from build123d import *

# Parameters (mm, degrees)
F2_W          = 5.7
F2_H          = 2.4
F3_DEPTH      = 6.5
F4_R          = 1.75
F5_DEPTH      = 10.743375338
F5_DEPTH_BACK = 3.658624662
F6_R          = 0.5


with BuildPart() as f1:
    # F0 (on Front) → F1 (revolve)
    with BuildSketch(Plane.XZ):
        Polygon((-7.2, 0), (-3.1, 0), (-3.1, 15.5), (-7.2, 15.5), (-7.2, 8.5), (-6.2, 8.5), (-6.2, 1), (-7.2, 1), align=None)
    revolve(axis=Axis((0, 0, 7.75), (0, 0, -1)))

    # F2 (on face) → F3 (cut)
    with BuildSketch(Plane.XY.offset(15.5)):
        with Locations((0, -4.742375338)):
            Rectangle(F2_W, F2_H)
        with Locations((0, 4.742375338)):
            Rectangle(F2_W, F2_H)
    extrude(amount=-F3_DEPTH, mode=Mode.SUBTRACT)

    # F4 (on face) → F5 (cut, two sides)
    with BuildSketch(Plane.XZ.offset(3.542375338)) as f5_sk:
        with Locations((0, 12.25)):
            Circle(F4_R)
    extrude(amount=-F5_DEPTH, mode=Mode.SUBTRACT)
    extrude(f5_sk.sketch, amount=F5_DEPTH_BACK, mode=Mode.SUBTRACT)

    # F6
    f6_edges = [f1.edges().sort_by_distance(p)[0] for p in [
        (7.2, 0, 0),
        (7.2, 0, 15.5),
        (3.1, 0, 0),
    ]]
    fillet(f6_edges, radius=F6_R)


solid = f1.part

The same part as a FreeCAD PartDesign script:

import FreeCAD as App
import Part
import Sketcher
Q = App.Units.Quantity


def edges_at(feature, points):
    """Names of the edges that pass closest to the given points."""
    edges = feature.Shape.Edges
    near = lambda p: min(range(len(edges)), key=lambda i: edges[i].distToShape(Part.Vertex(*p))[0])
    return sorted({f"Edge{near(p) + 1}" for p in points})

doc = App.newDocument("Part")
params = doc.addObject("Spreadsheet::Sheet", "Params")
for row, (alias, value) in enumerate([
    ("sketch1_width", "1 mm"),
    ("sketch1_height", "7 mm"),
    ("sketch1_width2", "4.1 mm"),
    ("sketch1_height2", "15.5 mm"),
    ("revolution_angle", "360 deg"),
    ("sketch2_width", "5.7 mm"),
    ("sketch2_height", "2.4 mm"),
    ("pocket1_length", "6.5 mm"),
    ("sketch3_diameter", "3.5 mm"),
    ("fillet_radius", "0.5 mm"),
], start=1):
    params.set(f"A{row}", alias)
    params.set(f"B{row}", "=" + value)
    params.setAlias(f"B{row}", alias)

body = doc.addObject("PartDesign::Body", "Body")

sketch1 = body.newObject("Sketcher::SketchObject", "Sketch")
sketch1.AttachmentSupport = (doc.getObject("XZ_Plane"), [""])
sketch1.MapMode = "FlatFace"
sketch1.addGeometry([
    Part.LineSegment(App.Vector(-7.2, 0, 0), App.Vector(-3.1, 0, 0)),
    Part.LineSegment(App.Vector(-3.1, 0, 0), App.Vector(-3.1, 15.5, 0)),
    Part.LineSegment(App.Vector(-3.1, 15.5, 0), App.Vector(-7.2, 15.5, 0)),
    Part.LineSegment(App.Vector(-7.2, 15.5, 0), App.Vector(-7.2, 8.5, 0)),
    Part.LineSegment(App.Vector(-7.2, 8.5, 0), App.Vector(-6.2, 8.5, 0)),
    Part.LineSegment(App.Vector(-6.2, 8.5, 0), App.Vector(-6.2, 1, 0)),
    Part.LineSegment(App.Vector(-6.2, 1, 0), App.Vector(-7.2, 1, 0)),
    Part.LineSegment(App.Vector(-7.2, 1, 0), App.Vector(-7.2, 0, 0)),
], False)
sketch1.addConstraint([
    Sketcher.Constraint("Coincident", 0, 2, 1, 1),
    Sketcher.Constraint("Coincident", 1, 2, 2, 1),
    Sketcher.Constraint("Coincident", 2, 2, 3, 1),
    Sketcher.Constraint("Coincident", 3, 2, 4, 1),
    Sketcher.Constraint("Coincident", 4, 2, 5, 1),
    Sketcher.Constraint("Coincident", 5, 2, 6, 1),
    Sketcher.Constraint("Coincident", 6, 2, 7, 1),
    Sketcher.Constraint("Coincident", 7, 2, 0, 1),
    Sketcher.Constraint("Horizontal", 0),
    Sketcher.Constraint("Vertical", 1),
    Sketcher.Constraint("Horizontal", 2),
    Sketcher.Constraint("Vertical", 3),
    Sketcher.Constraint("Horizontal", 4),
    Sketcher.Constraint("Vertical", 5),
    Sketcher.Constraint("Horizontal", 6),
    Sketcher.Constraint("Vertical", 7),
    Sketcher.Constraint("PointOnObject", 0, 2, -1),
    Sketcher.Constraint("Vertical", 3, 2, 6, 2),
    Sketcher.Constraint("Equal", 6, 7),
    Sketcher.Constraint("DistanceX", 4, 1, 4, 2, Q("1 mm")),
    Sketcher.Constraint("DistanceY", 3, 2, 3, 1, Q("7 mm")),
    Sketcher.Constraint("DistanceX", 0, 1, 0, 2, Q("4.1 mm")),
    Sketcher.Constraint("DistanceY", 1, 1, 1, 2, Q("15.5 mm")),
    Sketcher.Constraint("DistanceX", 0, 2, -1, 1, Q("3.1 mm")),
])
sketch1.setExpression("Constraints[19]", "Params.sketch1_width")
sketch1.setExpression("Constraints[20]", "Params.sketch1_height")
sketch1.setExpression("Constraints[21]", "Params.sketch1_width2")
sketch1.setExpression("Constraints[22]", "Params.sketch1_height2")
revolution = body.newObject("PartDesign::Revolution", "Revolution")
revolution.Profile = sketch1
revolution.ReferenceAxis = (sketch1, ["V_Axis"])
revolution.setExpression("Angle", "Params.revolution_angle")

sketch2 = body.newObject("Sketcher::SketchObject", "Sketch001")
sketch2.AttachmentSupport = (doc.getObject("XY_Plane"), [""])
sketch2.MapMode = "FlatFace"
sketch2.AttachmentOffset = App.Placement(App.Vector(0, 0, 15.5), App.Rotation())
sketch2.addGeometry([
    Part.LineSegment(App.Vector(-2.9, -3.5, 0), App.Vector(-2.9, -5.9, 0)),
    Part.LineSegment(App.Vector(-2.9, -5.9, 0), App.Vector(2.9, -5.9, 0)),
    Part.LineSegment(App.Vector(2.9, -5.9, 0), App.Vector(2.9, -3.5, 0)),
    Part.LineSegment(App.Vector(2.9, -3.5, 0), App.Vector(-2.9, -3.5, 0)),
    Part.LineSegment(App.Vector(-2.9, 5.9, 0), App.Vector(-2.9, 3.5, 0)),
    Part.LineSegment(App.Vector(-2.9, 3.5, 0), App.Vector(2.9, 3.5, 0)),
    Part.LineSegment(App.Vector(2.9, 3.5, 0), App.Vector(2.9, 5.9, 0)),
    Part.LineSegment(App.Vector(2.9, 5.9, 0), App.Vector(-2.9, 5.9, 0)),
], False)
sketch2.addConstraint([
    Sketcher.Constraint("Coincident", 0, 2, 1, 1),
    Sketcher.Constraint("Coincident", 1, 2, 2, 1),
    Sketcher.Constraint("Coincident", 2, 2, 3, 1),
    Sketcher.Constraint("Coincident", 3, 2, 0, 1),
    Sketcher.Constraint("Coincident", 4, 2, 5, 1),
    Sketcher.Constraint("Coincident", 5, 2, 6, 1),
    Sketcher.Constraint("Coincident", 6, 2, 7, 1),
    Sketcher.Constraint("Coincident", 7, 2, 4, 1),
    Sketcher.Constraint("Vertical", 0),
    Sketcher.Constraint("Horizontal", 1),
    Sketcher.Constraint("Vertical", 2),
    Sketcher.Constraint("Horizontal", 3),
    Sketcher.Constraint("Vertical", 4),
    Sketcher.Constraint("Horizontal", 5),
    Sketcher.Constraint("Vertical", 6),
    Sketcher.Constraint("Horizontal", 7),
    Sketcher.Constraint("Symmetric", 2, 2, 4, 2, -1, 1),
    Sketcher.Constraint("Symmetric", 0, 2, 6, 2, -1, 1),
    Sketcher.Constraint("Vertical", 3, 2, 4, 2),
    Sketcher.Constraint("DistanceX", 1, 1, 1, 2, Q("5.7 mm")),
    Sketcher.Constraint("DistanceY", 0, 2, 0, 1, Q("2.4 mm")),
    Sketcher.Constraint("DistanceY", 3, 2, 4, 2, Q("7.084751 mm")),
])
sketch2.setExpression("Constraints[19]", "Params.sketch2_width")
sketch2.setExpression("Constraints[20]", "Params.sketch2_height")
pocket1 = body.newObject("PartDesign::Pocket", "Pocket")
pocket1.Profile = sketch2
pocket1.setExpression("Length", "Params.pocket1_length")

sketch3 = body.newObject("Sketcher::SketchObject", "Sketch002")
sketch3.AttachmentSupport = (doc.getObject("XZ_Plane"), [""])
sketch3.MapMode = "FlatFace"
sketch3.AttachmentOffset = App.Placement(App.Vector(0, 0, 3.542375), App.Rotation())
sketch3.addGeometry(Part.Circle(App.Vector(0, 12.2, 0), App.Vector(0, 0, 1), 1.8), False)
sketch3.addConstraint([
    Sketcher.Constraint("PointOnObject", 0, 3, -2),
    Sketcher.Constraint("Diameter", 0, Q("3.5 mm")),
    Sketcher.Constraint("DistanceY", -1, 1, 0, 3, Q("12.25 mm")),
])
sketch3.setExpression("Constraints[1]", "Params.sketch3_diameter")
pocket2 = body.newObject("PartDesign::Pocket", "Pocket001")
pocket2.Profile = sketch3
pocket2.Type = "ThroughAll"
pocket2.Midplane = True
doc.recompute()

fillet = body.newObject("PartDesign::Fillet", "Fillet")
fillet.Base = (pocket2, edges_at(pocket2, [(7.2, 0, 0), (7.2, 0, 15.5), (3.1, 0, 0)]))
fillet.setExpression("Radius", "Params.fillet_radius")

doc.recompute()
